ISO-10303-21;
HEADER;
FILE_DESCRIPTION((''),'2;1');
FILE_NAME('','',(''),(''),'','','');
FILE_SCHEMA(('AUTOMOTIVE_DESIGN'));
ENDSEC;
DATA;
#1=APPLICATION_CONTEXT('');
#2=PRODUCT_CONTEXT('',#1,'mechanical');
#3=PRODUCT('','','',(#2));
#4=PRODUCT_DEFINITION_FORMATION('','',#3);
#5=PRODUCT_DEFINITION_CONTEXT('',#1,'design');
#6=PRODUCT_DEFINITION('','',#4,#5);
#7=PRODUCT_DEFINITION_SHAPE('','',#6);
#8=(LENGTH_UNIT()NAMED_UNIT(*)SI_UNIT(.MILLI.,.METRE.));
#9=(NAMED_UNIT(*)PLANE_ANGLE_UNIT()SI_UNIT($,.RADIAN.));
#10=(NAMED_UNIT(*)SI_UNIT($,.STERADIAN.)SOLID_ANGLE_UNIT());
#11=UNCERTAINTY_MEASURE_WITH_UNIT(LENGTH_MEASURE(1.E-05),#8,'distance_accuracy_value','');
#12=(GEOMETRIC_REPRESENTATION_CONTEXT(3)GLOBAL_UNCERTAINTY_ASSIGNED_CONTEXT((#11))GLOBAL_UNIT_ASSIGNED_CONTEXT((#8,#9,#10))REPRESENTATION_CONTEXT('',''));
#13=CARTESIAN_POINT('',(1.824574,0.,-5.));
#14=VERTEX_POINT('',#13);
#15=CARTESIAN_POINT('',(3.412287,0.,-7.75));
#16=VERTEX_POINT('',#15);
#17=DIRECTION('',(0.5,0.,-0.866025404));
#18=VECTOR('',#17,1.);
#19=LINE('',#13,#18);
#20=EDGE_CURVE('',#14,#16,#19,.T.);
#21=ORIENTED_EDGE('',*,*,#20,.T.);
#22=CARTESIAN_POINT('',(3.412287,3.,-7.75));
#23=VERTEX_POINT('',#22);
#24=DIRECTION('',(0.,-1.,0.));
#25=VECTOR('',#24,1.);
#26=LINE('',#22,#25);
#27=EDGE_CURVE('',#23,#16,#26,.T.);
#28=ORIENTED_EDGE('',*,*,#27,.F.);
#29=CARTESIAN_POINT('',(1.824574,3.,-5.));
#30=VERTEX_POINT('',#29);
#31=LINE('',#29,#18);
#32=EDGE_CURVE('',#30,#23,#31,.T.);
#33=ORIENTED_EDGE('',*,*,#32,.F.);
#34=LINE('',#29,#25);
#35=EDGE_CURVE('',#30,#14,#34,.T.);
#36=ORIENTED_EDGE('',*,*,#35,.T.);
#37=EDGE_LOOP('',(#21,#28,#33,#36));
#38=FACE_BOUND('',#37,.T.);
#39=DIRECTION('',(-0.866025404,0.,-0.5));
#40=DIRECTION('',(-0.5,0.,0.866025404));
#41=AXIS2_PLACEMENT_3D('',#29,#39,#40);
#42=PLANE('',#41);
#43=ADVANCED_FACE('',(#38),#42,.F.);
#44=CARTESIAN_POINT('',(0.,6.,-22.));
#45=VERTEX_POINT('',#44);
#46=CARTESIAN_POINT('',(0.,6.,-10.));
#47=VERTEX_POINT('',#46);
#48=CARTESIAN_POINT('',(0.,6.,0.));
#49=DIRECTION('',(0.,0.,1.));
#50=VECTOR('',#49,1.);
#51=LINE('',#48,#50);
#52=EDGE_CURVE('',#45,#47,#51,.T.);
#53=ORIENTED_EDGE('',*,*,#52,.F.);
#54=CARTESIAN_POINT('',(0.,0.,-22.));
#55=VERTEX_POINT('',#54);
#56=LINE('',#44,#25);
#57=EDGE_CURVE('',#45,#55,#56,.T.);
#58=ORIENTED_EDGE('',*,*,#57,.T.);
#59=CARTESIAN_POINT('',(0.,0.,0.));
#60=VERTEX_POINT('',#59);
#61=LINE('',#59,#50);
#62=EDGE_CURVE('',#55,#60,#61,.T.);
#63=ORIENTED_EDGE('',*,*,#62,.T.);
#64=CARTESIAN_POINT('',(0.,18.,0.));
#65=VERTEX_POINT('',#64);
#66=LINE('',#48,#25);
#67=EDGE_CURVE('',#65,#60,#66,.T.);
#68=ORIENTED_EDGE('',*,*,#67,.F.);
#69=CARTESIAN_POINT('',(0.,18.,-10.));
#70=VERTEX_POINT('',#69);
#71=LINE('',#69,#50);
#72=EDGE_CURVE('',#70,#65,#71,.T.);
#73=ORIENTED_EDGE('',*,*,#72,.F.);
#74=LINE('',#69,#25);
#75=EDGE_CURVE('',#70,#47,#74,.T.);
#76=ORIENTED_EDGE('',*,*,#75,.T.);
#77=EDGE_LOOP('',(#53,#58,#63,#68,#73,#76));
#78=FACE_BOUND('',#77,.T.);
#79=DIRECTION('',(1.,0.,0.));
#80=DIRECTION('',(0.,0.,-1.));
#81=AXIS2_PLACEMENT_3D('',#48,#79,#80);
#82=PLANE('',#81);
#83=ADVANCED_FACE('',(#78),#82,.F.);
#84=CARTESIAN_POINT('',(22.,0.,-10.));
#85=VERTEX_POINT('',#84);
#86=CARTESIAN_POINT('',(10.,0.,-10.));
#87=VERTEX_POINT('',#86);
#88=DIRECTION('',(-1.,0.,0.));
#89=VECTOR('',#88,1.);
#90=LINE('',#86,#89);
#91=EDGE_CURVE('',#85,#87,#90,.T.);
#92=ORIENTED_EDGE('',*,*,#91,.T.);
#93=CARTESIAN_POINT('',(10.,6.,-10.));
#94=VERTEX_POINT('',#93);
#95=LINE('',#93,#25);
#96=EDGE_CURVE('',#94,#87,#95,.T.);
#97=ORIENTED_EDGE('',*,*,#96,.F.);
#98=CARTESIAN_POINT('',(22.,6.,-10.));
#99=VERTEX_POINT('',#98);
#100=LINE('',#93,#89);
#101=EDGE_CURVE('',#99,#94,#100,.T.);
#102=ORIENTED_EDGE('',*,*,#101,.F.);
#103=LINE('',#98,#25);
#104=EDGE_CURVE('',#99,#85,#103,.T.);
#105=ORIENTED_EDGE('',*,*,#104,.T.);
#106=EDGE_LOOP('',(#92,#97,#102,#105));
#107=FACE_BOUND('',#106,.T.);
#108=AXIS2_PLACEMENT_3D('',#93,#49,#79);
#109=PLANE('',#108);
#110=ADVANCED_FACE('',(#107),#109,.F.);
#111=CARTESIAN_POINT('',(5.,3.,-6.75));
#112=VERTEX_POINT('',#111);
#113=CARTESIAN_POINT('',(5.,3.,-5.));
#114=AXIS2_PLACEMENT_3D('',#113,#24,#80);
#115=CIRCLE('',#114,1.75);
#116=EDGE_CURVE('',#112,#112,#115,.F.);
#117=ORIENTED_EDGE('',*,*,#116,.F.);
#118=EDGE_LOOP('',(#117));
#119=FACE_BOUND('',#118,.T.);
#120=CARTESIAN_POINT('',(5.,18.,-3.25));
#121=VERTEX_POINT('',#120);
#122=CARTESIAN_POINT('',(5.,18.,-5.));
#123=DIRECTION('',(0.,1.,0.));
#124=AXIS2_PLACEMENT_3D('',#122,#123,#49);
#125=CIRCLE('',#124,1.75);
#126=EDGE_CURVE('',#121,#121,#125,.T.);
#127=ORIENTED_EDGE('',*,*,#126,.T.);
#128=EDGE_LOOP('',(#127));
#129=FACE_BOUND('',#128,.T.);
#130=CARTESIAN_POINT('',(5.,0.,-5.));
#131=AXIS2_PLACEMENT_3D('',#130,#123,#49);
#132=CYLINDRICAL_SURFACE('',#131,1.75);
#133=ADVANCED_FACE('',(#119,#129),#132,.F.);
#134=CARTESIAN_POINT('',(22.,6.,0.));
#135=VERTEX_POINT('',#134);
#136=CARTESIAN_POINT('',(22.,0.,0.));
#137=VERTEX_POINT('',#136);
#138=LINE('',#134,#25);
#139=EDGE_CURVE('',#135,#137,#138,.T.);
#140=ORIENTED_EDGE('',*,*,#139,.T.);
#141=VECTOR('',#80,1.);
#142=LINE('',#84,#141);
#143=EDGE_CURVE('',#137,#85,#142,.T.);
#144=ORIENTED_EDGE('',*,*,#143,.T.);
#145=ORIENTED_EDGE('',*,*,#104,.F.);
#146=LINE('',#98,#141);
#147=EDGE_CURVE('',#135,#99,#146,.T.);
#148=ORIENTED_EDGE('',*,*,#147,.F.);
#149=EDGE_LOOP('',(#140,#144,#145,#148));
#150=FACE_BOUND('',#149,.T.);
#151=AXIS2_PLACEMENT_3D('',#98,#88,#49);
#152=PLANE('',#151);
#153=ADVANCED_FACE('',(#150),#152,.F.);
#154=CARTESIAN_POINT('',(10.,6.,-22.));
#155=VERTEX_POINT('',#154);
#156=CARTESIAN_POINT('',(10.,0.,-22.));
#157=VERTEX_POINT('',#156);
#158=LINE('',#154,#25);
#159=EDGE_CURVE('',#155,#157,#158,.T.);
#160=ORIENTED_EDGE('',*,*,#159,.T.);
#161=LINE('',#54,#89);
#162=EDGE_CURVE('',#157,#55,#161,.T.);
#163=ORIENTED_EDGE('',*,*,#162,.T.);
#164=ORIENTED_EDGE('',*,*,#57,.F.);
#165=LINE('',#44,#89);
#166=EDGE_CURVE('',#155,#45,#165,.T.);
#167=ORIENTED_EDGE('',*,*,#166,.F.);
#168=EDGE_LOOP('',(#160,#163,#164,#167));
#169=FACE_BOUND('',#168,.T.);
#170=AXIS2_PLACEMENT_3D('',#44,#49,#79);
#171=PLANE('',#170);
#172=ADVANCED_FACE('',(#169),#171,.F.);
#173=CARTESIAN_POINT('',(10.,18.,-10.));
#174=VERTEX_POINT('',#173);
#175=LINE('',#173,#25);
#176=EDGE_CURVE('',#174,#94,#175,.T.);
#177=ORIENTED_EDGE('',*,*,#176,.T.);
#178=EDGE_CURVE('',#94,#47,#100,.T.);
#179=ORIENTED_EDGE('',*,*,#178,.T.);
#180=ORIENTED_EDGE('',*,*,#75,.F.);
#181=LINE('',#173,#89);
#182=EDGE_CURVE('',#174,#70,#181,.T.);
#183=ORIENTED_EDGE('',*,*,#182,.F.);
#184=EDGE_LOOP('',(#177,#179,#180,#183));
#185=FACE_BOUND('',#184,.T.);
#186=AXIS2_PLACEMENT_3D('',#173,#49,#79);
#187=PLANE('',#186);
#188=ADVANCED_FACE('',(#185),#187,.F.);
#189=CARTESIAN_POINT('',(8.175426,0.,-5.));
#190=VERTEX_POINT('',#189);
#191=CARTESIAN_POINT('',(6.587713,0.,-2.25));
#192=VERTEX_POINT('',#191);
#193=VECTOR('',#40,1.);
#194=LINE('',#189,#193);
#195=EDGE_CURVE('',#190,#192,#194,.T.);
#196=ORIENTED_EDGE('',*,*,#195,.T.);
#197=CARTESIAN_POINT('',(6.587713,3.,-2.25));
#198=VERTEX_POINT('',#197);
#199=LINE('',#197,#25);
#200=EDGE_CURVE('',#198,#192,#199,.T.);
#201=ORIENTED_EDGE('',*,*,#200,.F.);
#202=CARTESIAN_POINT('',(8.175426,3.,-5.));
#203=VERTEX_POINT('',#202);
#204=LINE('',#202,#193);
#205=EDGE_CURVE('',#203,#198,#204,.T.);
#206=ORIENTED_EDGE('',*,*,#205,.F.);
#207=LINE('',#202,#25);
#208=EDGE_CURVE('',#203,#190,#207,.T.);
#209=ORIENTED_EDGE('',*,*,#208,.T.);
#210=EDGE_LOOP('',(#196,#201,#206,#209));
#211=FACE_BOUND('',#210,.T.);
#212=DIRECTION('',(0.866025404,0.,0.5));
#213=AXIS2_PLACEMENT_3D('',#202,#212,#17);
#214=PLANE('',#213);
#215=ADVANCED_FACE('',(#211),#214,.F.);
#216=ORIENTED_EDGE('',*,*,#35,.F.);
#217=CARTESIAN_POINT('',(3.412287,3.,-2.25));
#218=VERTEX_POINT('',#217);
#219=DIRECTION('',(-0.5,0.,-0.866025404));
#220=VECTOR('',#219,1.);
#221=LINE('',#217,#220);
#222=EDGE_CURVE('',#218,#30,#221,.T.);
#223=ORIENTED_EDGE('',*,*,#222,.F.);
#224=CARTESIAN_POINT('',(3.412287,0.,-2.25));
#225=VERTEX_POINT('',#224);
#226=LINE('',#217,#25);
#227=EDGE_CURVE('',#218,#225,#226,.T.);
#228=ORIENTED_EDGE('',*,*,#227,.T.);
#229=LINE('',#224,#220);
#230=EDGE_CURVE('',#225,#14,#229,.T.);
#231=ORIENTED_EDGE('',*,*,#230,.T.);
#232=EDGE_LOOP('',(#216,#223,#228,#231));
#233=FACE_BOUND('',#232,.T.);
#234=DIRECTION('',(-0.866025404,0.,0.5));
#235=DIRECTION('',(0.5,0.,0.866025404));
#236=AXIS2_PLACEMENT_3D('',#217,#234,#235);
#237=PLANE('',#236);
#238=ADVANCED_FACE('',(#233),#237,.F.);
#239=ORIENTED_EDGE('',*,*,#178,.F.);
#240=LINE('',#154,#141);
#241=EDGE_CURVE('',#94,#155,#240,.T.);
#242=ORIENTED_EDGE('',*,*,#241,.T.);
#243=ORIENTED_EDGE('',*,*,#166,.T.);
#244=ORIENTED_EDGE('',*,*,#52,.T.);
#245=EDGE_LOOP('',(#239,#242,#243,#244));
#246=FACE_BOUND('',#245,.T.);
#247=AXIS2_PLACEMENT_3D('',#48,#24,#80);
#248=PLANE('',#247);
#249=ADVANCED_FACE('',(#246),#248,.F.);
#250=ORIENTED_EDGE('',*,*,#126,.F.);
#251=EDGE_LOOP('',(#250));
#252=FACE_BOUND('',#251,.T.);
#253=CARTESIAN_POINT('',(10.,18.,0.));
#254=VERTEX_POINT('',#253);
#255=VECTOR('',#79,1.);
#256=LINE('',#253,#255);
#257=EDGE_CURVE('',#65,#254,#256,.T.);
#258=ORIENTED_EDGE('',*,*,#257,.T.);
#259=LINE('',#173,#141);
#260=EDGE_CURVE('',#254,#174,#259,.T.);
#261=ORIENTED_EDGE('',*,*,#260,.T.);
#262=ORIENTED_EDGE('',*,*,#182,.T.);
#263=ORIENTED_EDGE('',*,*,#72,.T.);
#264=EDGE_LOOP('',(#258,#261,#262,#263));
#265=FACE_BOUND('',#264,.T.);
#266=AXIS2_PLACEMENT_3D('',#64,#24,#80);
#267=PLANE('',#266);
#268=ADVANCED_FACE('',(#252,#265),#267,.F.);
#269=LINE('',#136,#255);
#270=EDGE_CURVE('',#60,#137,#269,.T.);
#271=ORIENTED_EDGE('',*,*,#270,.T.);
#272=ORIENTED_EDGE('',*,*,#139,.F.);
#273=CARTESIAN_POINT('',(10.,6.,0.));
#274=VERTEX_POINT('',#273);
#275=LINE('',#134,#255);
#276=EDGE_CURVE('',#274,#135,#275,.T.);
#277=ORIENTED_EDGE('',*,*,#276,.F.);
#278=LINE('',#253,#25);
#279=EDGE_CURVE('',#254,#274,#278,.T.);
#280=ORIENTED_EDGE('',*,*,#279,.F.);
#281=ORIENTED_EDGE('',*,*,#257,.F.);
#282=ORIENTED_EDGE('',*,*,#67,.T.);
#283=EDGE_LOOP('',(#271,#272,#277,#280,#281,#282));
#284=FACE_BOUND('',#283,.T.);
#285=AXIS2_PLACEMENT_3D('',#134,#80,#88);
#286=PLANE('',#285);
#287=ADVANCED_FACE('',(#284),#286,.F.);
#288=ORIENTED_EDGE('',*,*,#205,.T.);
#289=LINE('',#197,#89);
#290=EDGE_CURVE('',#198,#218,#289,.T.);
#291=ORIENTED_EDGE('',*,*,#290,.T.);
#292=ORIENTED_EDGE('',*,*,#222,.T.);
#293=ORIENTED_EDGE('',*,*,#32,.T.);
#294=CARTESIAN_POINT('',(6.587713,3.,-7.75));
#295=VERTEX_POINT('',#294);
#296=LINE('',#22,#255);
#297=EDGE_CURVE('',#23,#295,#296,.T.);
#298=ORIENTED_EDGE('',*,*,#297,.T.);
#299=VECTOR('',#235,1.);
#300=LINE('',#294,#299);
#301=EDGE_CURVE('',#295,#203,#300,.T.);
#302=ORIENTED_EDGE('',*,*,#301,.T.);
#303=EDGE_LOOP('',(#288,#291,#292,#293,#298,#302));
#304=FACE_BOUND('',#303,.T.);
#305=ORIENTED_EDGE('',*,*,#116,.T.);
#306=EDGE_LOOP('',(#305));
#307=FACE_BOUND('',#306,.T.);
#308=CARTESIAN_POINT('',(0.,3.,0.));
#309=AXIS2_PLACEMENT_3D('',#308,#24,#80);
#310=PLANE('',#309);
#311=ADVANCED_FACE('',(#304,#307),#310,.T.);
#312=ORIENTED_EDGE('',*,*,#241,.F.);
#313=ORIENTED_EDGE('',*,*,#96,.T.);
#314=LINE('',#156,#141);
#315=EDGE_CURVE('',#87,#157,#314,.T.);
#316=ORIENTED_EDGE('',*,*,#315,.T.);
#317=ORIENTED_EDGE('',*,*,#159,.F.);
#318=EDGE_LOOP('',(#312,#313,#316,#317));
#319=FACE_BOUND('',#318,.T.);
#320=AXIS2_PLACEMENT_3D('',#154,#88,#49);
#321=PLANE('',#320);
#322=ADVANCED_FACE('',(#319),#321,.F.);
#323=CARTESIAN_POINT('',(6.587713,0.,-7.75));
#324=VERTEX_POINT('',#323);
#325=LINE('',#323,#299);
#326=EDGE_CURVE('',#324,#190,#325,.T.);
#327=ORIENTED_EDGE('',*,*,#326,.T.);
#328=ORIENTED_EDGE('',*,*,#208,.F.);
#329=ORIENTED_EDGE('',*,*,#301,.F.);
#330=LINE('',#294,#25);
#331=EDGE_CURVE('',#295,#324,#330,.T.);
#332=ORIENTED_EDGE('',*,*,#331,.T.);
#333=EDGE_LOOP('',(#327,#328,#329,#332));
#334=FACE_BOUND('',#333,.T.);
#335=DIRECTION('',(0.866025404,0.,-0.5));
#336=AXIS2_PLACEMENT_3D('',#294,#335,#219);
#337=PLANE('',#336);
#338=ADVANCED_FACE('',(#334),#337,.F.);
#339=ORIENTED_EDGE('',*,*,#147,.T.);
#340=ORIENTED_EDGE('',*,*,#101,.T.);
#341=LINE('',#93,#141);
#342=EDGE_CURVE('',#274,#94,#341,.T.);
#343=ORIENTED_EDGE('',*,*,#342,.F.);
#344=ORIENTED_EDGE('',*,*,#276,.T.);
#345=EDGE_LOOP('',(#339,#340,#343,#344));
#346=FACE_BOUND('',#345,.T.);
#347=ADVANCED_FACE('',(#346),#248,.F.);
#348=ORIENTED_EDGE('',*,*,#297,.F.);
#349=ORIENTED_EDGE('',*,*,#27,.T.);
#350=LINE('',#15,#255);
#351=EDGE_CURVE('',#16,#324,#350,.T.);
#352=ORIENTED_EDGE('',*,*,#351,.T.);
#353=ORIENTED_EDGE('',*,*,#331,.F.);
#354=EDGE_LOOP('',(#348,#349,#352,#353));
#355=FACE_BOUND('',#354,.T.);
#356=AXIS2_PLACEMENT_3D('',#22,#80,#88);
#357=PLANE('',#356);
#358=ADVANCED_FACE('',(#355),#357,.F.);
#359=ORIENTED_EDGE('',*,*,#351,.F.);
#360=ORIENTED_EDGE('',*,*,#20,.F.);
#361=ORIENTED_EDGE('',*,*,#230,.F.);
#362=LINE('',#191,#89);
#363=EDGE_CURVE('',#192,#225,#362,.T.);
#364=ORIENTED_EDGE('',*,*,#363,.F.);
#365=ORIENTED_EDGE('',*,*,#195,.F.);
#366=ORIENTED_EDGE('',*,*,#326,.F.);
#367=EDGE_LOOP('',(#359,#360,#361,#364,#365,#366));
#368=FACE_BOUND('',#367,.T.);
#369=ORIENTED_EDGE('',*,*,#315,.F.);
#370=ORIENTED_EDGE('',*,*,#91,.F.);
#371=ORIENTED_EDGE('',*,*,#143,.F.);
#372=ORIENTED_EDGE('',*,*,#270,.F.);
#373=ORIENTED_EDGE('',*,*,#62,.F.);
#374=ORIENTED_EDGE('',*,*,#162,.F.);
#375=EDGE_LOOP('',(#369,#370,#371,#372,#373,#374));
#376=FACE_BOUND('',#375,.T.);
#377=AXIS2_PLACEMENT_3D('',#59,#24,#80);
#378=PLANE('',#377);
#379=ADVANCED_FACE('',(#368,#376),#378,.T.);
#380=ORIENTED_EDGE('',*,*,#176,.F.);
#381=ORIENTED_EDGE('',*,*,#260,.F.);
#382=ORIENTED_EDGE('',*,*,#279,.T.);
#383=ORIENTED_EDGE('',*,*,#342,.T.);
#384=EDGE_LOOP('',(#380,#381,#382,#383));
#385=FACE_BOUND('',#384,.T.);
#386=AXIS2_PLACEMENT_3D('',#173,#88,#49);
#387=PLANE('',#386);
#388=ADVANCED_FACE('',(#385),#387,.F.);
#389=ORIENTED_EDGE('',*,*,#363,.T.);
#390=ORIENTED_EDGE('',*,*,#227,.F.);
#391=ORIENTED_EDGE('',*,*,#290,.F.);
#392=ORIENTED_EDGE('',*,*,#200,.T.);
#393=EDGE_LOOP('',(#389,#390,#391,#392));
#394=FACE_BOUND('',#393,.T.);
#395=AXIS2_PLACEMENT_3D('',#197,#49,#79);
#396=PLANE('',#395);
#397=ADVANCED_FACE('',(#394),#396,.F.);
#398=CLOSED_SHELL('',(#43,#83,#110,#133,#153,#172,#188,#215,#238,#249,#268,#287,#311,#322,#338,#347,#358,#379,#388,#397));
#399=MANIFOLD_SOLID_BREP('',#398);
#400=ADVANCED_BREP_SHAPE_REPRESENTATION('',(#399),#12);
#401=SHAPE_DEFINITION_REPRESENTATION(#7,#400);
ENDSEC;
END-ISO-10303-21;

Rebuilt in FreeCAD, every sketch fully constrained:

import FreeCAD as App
import Part
import Sketcher

V = App.Vector
Q = App.Units.Quantity


def add_polygon(sketch, points):
    """Adds a closed chain of lines whose ends are joined by coincident constraints."""
    first, n = sketch.GeometryCount, len(points)
    for a, b in zip(points, points[1:] + points[:1]):
        sketch.addGeometry(Part.LineSegment(App.Vector(*a, 0), App.Vector(*b, 0)), False)
    for i in range(n):
        sketch.addConstraint(Sketcher.Constraint("Coincident", first + i, 2, first + (i + 1) % n, 1))

doc = App.newDocument("Part")
params = doc.addObject("Spreadsheet::Sheet", "Params")
for row, (alias, value) in enumerate([
    ("sketch1_width", "22 mm"),
    ("sketch1_width2", "12 mm"),
    ("pad1_length", "6 mm"),
    ("sketch2_width", "10 mm"),
    ("pad2_length", "12 mm"),
    ("sketch3_diameter", "3.5 mm"),
    ("pocket2_length", "3 mm"),
], start=1):
    params.set(f"A{row}", alias)
    params.set(f"B{row}", "=" + value)
    params.setAlias(f"B{row}", alias)

body = doc.addObject("PartDesign::Body", "Body")

sketch1 = body.newObject("Sketcher::SketchObject", "Sketch")
sketch1.AttachmentSupport = (doc.getObject("XZ_Plane"), [""])
sketch1.MapMode = "FlatFace"
add_polygon(sketch1, [(0, -22), (0, 0), (22, 0), (22, -10), (10, -10), (10, -22)])
sketch1.addConstraint(Sketcher.Constraint("Vertical", 0))
sketch1.addConstraint(Sketcher.Constraint("Horizontal", 1))
sketch1.addConstraint(Sketcher.Constraint("Vertical", 2))
sketch1.addConstraint(Sketcher.Constraint("Horizontal", 3))
sketch1.addConstraint(Sketcher.Constraint("Vertical", 4))
sketch1.addConstraint(Sketcher.Constraint("Horizontal", 5))
sketch1.addConstraint(Sketcher.Constraint("Coincident", 0, 2, -1, 1))
sketch1.addConstraint(Sketcher.Constraint("Equal", 1, 0))
sketch1.addConstraint(Sketcher.Constraint("Equal", 5, 2))
sketch1.addConstraint(Sketcher.Constraint("DistanceX", 1, 1, 1, 2, Q("22 mm")))
sketch1.addConstraint(Sketcher.Constraint("DistanceX", 3, 2, 3, 1, Q("12 mm")))
sketch1.setExpression("Constraints[15]", "Params.sketch1_width")
sketch1.setExpression("Constraints[16]", "Params.sketch1_width2")
pad1 = body.newObject("PartDesign::Pad", "Pad")
pad1.Profile = sketch1
pad1.setExpression("Length", "Params.pad1_length")
pad1.Reversed = True

sketch2 = body.newObject("Sketcher::SketchObject", "Sketch001")
sketch2.AttachmentSupport = (doc.getObject("XZ_Plane"), [""])
sketch2.MapMode = "FlatFace"
sketch2.AttachmentOffset = App.Placement(V(0, 0, -6), App.Rotation())
add_polygon(sketch2, [(0, -10), (0, 0), (10, 0), (10, -10)])
sketch2.addConstraint(Sketcher.Constraint("Vertical", 0))
sketch2.addConstraint(Sketcher.Constraint("Horizontal", 1))
sketch2.addConstraint(Sketcher.Constraint("Vertical", 2))
sketch2.addConstraint(Sketcher.Constraint("Horizontal", 3))
sketch2.addConstraint(Sketcher.Constraint("Coincident", 0, 2, -1, 1))
sketch2.addConstraint(Sketcher.Constraint("Equal", 3, 0))
sketch2.addConstraint(Sketcher.Constraint("DistanceX", 1, 1, 1, 2, Q("10 mm")))
sketch2.setExpression("Constraints[10]", "Params.sketch2_width")
pad2 = body.newObject("PartDesign::Pad", "Pad001")
pad2.Profile = sketch2
pad2.setExpression("Length", "Params.pad2_length")
pad2.Reversed = True

sketch3 = body.newObject("Sketcher::SketchObject", "Sketch002")
sketch3.AttachmentSupport = (doc.getObject("XZ_Plane"), [""])
sketch3.MapMode = "FlatFace"
sketch3.AttachmentOffset = App.Placement(V(0, 0, -18), App.Rotation())
sketch3.addGeometry(Part.Circle(V(5, -5, 0), V(0, 0, 1), 1.8), False)
sketch3.addConstraint(Sketcher.Constraint("Diameter", 0, Q("3.5 mm")))
sketch3.addConstraint(Sketcher.Constraint("DistanceX", -1, 1, 0, 3, Q("5 mm")))
sketch3.addConstraint(Sketcher.Constraint("DistanceY", 0, 3, -1, 1, Q("5 mm")))
sketch3.setExpression("Constraints[0]", "Params.sketch3_diameter")
pocket1 = body.newObject("PartDesign::Pocket", "Pocket")
pocket1.Profile = sketch3
pocket1.Type = "ThroughAll"
pocket1.Reversed = True

sketch4 = body.newObject("Sketcher::SketchObject", "Sketch003")
sketch4.AttachmentSupport = (doc.getObject("XZ_Plane"), [""])
sketch4.MapMode = "FlatFace"
add_polygon(sketch4, [(1.8, -5), (3.4, -7.8), (6.6, -7.8), (8.2, -5), (6.6, -2.2), (3.4, -2.2)])
sketch4.addConstraint(Sketcher.Constraint("Horizontal", 1))
sketch4.addConstraint(Sketcher.Constraint("Horizontal", 4))
sketch4.addConstraint(Sketcher.Constraint("Parallel", 0, 3))
sketch4.addConstraint(Sketcher.Constraint("Parallel", 2, 5))
sketch4.addConstraint(Sketcher.Constraint("Horizontal", 2, 2, 5, 2))
sketch4.addConstraint(Sketcher.Constraint("Vertical", 1, 2, 3, 2))
sketch4.addConstraint(Sketcher.Constraint("Vertical", 0, 2, 4, 2))
sketch4.addConstraint(Sketcher.Constraint("Angle", 0, Q("-60 deg")))
sketch4.addConstraint(Sketcher.Constraint("DistanceY", 2, 2, -1, 1, Q("5 mm")))
sketch4.addConstraint(Sketcher.Constraint("DistanceY", 1, 2, 3, 2, Q("5.5 mm")))
sketch4.addConstraint(Sketcher.Constraint("DistanceX", 1, 1, 1, 2, Q("3.175426 mm")))
sketch4.addConstraint(Sketcher.Constraint("DistanceX", -1, 1, 0, 2, Q("3.412287 mm")))
pocket2 = body.newObject("PartDesign::Pocket", "Pocket001")
pocket2.Profile = sketch4
pocket2.setExpression("Length", "Params.pocket2_length")

doc.recompute()
